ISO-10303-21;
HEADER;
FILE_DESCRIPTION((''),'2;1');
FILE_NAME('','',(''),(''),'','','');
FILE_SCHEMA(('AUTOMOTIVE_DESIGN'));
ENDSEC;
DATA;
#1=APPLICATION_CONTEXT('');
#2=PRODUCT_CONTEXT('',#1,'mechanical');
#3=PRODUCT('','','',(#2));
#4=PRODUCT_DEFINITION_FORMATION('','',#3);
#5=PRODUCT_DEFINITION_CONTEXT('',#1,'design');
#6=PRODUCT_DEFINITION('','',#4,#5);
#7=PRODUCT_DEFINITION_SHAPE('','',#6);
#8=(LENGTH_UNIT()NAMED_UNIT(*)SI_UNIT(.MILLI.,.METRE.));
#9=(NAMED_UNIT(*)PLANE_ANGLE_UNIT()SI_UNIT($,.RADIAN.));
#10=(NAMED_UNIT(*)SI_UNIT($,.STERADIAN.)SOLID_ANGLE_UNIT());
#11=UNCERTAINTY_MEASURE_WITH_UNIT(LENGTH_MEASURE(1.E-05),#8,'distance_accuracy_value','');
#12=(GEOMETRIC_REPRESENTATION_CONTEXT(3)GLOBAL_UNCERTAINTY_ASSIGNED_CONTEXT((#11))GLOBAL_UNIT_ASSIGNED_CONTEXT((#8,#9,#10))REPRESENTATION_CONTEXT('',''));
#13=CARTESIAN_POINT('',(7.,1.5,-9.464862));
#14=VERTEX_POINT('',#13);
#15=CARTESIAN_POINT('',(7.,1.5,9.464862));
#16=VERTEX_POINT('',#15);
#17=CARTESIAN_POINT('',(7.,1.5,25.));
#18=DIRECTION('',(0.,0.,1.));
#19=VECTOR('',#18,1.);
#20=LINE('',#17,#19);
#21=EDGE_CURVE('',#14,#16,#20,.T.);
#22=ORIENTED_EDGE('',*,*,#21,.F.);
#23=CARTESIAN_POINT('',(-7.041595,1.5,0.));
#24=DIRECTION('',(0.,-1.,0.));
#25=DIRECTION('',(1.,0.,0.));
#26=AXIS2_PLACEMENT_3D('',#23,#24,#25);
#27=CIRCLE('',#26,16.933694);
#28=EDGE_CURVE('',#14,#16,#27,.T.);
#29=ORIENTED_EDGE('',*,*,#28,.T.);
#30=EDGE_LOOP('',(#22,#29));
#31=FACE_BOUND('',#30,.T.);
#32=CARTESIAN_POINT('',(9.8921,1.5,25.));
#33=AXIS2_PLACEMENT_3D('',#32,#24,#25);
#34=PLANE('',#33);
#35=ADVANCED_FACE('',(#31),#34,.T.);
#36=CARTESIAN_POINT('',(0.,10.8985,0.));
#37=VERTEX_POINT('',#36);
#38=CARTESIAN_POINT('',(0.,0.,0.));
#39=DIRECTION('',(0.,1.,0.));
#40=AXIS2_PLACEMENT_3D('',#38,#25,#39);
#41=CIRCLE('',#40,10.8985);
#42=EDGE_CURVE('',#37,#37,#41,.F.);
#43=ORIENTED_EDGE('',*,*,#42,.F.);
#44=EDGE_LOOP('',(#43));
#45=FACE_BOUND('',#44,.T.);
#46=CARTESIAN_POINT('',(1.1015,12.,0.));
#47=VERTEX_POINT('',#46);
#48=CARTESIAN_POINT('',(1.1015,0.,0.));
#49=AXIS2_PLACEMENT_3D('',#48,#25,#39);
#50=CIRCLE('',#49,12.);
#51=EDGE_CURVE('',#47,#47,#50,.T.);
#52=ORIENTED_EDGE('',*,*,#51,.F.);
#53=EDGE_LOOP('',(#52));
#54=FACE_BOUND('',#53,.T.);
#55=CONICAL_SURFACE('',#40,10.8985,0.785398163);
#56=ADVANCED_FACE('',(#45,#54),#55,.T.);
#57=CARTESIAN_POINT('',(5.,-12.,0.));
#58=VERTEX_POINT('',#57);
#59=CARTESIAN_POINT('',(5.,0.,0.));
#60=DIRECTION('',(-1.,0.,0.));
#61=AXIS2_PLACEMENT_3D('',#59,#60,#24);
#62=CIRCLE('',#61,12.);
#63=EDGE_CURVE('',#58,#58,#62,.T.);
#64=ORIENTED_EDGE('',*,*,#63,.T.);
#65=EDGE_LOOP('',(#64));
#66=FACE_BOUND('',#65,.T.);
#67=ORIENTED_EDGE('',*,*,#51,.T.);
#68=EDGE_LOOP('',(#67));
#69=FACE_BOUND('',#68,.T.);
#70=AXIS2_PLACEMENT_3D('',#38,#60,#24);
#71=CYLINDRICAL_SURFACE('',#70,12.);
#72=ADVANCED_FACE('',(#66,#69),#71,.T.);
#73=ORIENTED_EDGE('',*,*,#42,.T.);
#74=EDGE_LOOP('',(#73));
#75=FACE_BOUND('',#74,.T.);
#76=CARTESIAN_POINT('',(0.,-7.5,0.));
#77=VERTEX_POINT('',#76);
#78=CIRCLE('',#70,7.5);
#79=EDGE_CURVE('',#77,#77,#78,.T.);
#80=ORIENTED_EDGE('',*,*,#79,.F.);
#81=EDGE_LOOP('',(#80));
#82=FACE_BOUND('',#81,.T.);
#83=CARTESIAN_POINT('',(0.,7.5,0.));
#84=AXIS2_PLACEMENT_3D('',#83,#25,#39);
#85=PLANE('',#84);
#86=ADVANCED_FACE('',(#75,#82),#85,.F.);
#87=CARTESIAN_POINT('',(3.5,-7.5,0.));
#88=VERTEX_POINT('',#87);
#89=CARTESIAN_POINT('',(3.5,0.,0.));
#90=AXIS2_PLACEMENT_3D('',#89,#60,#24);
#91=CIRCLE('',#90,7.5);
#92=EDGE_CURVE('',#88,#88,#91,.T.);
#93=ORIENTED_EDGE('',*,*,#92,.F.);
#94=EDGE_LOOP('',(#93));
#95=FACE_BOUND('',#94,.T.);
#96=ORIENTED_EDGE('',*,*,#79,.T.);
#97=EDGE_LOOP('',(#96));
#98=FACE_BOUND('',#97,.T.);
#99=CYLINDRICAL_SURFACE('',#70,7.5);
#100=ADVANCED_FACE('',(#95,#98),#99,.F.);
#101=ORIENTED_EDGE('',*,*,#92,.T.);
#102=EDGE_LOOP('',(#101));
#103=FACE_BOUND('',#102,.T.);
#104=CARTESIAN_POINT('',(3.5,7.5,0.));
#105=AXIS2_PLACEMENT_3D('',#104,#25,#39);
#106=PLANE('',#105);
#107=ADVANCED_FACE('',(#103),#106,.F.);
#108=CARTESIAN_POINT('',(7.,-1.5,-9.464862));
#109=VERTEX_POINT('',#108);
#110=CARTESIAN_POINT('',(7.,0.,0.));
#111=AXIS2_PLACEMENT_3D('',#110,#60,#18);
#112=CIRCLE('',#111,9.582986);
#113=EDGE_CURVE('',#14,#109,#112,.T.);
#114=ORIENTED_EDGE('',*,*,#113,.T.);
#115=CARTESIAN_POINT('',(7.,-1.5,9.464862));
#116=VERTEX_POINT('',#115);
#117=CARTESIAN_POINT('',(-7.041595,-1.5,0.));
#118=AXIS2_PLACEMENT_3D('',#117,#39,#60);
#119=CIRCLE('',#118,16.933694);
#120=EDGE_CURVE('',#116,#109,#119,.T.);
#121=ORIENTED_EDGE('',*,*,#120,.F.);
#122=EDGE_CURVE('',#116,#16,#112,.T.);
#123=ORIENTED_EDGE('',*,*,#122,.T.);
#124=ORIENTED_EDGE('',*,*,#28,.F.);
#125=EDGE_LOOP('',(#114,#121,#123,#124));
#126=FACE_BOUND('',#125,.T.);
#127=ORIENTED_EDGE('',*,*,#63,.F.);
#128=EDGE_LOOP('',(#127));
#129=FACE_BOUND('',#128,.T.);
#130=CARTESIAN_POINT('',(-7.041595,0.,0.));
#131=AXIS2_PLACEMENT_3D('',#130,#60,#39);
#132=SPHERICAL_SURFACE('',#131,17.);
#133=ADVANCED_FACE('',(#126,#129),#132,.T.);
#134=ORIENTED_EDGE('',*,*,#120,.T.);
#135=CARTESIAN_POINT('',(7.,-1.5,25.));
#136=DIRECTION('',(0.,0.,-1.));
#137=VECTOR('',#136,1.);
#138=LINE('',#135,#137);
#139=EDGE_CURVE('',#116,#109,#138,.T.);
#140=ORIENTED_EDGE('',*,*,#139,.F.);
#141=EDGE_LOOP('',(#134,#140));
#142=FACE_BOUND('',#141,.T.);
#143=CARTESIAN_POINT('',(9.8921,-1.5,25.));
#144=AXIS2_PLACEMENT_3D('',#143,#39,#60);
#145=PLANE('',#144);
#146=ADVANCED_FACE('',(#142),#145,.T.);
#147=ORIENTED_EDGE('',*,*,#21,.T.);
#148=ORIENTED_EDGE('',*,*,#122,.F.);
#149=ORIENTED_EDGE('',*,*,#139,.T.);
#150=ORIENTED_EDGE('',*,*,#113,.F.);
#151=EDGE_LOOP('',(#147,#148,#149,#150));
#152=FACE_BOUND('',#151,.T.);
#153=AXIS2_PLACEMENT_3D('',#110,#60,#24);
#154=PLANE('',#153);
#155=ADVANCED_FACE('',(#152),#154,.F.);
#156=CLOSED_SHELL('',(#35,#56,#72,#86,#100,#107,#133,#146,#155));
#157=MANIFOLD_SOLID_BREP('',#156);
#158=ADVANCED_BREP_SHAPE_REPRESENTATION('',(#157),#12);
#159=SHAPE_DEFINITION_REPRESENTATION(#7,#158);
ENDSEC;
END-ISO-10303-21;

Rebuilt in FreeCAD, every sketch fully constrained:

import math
import FreeCAD as App
import Part
import Sketcher
from FreeCAD import Vector


def edges_at(feature, points):
    """Names of the edges that pass closest to the given points."""
    edges = feature.Shape.Edges
    near = lambda p: min(range(len(edges)), key=lambda i: edges[i].distToShape(Part.Vertex(*p))[0])
    return sorted({f"Edge{near(p) + 1}" for p in points})

doc = App.newDocument("Part")
body = doc.addObject("PartDesign::Body", "Body")

# Sketch on XY plane
sketch1 = doc.addObject("Sketcher::SketchObject", "Sketch")
body.addObject(sketch1)
sketch1.AttachmentSupport = (doc.XY_Plane, [""])
sketch1.MapMode = "FlatFace"
sketch1.addGeometry(Part.LineSegment(Vector(5, 12, 0), Vector(0, 12, 0)), False)
sketch1.addGeometry(Part.LineSegment(Vector(0, 12, 0), Vector(0, 7.5, 0)), False)
sketch1.addGeometry(Part.LineSegment(Vector(0, 7.5, 0), Vector(3.5, 7.5, 0)), False)
sketch1.addGeometry(Part.LineSegment(Vector(3.5, 7.5, 0), Vector(3.5, 0, 0)), False)
sketch1.addGeometry(Part.LineSegment(Vector(3.5, 0, 0), Vector(7, 0, 0)), False)
sketch1.addGeometry(Part.LineSegment(Vector(7, 0, 0), Vector(7, 1.5, 0)), False)
sketch1.addGeometry(Part.LineSegment(Vector(7, 1.5, 0), Vector(9.8921, 1.5, 0)), False)
sketch1.addGeometry(Part.ArcOfCircle(Part.Circle(Vector(-7.041595, 0, 0), Vector(0, 0, 1), 17), math.radians(5.062093), math.radians(44.900872)), False)
sketch1.addConstraint(Sketcher.Constraint("Coincident", 0, 2, 1, 1))
sketch1.addConstraint(Sketcher.Constraint("Coincident", 1, 2, 2, 1))
sketch1.addConstraint(Sketcher.Constraint("Coincident", 2, 2, 3, 1))
sketch1.addConstraint(Sketcher.Constraint("Coincident", 3, 2, 4, 1))
sketch1.addConstraint(Sketcher.Constraint("Coincident", 4, 2, 5, 1))
sketch1.addConstraint(Sketcher.Constraint("Coincident", 5, 2, 6, 1))
sketch1.addConstraint(Sketcher.Constraint("Coincident", 6, 2, 7, 1))
sketch1.addConstraint(Sketcher.Constraint("Coincident", 7, 2, 0, 1))
sketch1.addConstraint(Sketcher.Constraint("Horizontal", 0))
sketch1.addConstraint(Sketcher.Constraint("Vertical", 1))
sketch1.addConstraint(Sketcher.Constraint("Horizontal", 2))
sketch1.addConstraint(Sketcher.Constraint("Vertical", 3))
sketch1.addConstraint(Sketcher.Constraint("Horizontal", 4))
sketch1.addConstraint(Sketcher.Constraint("Vertical", 5))
sketch1.addConstraint(Sketcher.Constraint("Horizontal", 6))
sketch1.addConstraint(Sketcher.Constraint("PointOnObject", 7, 3, -1))
sketch1.addConstraint(Sketcher.Constraint("PointOnObject", 0, 2, -2))
sketch1.addConstraint(Sketcher.Constraint("PointOnObject", 3, 2, -1))
sketch1.addConstraint(Sketcher.Constraint("Equal", 2, 4))
sketch1.addConstraint(Sketcher.Constraint("Radius", 7, 17.0))
sketch1.addConstraint(Sketcher.Constraint("DistanceX", 0, 2, 0, 1, 5.0))
sketch1.addConstraint(Sketcher.Constraint("DistanceX", 2, 1, 2, 2, 3.5))
sketch1.addConstraint(Sketcher.Constraint("DistanceY", 1, 2, 1, 1, 4.5))
sketch1.addConstraint(Sketcher.Constraint("DistanceY", 3, 2, 3, 1, 7.5))
sketch1.addConstraint(Sketcher.Constraint("DistanceY", 5, 1, 5, 2, 1.5))
revolution = doc.addObject("PartDesign::Revolution", "Revolution")
body.addObject(revolution)
revolution.Profile = sketch1
revolution.ReferenceAxis = (sketch1, ["H_Axis"])
revolution.Angle = 360
doc.recompute()

chamfer = doc.addObject("PartDesign::Chamfer", "Chamfer")
body.addObject(chamfer)
chamfer.Base = (revolution, edges_at(revolution, [(0, -12, 0)]))
chamfer.Size = 1.1015

# Sketch on YZ plane
sketch2 = doc.addObject("Sketcher::SketchObject", "Sketch001")
body.addObject(sketch2)
sketch2.AttachmentSupport = (doc.YZ_Plane, [""])
sketch2.MapMode = "FlatFace"
sketch2.AttachmentOffset = App.Placement(Vector(0, 0, 7), App.Rotation())
sketch2.addGeometry(Part.LineSegment(Vector(1.5, 25, 0), Vector(-1.5, 25, 0)), False)
sketch2.addGeometry(Part.LineSegment(Vector(-1.5, 25, 0), Vector(-1.5, -25, 0)), False)
sketch2.addGeometry(Part.LineSegment(Vector(-1.5, -25, 0), Vector(1.5, -25, 0)), False)
sketch2.addGeometry(Part.LineSegment(Vector(1.5, -25, 0), Vector(1.5, 25, 0)), False)
sketch2.addConstraint(Sketcher.Constraint("Coincident", 0, 2, 1, 1))
sketch2.addConstraint(Sketcher.Constraint("Coincident", 1, 2, 2, 1))
sketch2.addConstraint(Sketcher.Constraint("Coincident", 2, 2, 3, 1))
sketch2.addConstraint(Sketcher.Constraint("Coincident", 3, 2, 0, 1))
sketch2.addConstraint(Sketcher.Constraint("Horizontal", 0))
sketch2.addConstraint(Sketcher.Constraint("Vertical", 1))
sketch2.addConstraint(Sketcher.Constraint("Horizontal", 2))
sketch2.addConstraint(Sketcher.Constraint("Vertical", 3))
sketch2.addConstraint(Sketcher.Constraint("Symmetric", 0, 2, 2, 2, -1, 1))
sketch2.addConstraint(Sketcher.Constraint("DistanceX", 0, 2, 0, 1, 3.0))
sketch2.addConstraint(Sketcher.Constraint("DistanceY", 1, 2, 1, 1, 50.0))
pocket1 = doc.addObject("PartDesign::Pocket", "Pocket")
body.addObject(pocket1)
pocket1.Profile = sketch2
pocket1.Type = "ThroughAll"
pocket1.Reversed = True

doc.recompute()
